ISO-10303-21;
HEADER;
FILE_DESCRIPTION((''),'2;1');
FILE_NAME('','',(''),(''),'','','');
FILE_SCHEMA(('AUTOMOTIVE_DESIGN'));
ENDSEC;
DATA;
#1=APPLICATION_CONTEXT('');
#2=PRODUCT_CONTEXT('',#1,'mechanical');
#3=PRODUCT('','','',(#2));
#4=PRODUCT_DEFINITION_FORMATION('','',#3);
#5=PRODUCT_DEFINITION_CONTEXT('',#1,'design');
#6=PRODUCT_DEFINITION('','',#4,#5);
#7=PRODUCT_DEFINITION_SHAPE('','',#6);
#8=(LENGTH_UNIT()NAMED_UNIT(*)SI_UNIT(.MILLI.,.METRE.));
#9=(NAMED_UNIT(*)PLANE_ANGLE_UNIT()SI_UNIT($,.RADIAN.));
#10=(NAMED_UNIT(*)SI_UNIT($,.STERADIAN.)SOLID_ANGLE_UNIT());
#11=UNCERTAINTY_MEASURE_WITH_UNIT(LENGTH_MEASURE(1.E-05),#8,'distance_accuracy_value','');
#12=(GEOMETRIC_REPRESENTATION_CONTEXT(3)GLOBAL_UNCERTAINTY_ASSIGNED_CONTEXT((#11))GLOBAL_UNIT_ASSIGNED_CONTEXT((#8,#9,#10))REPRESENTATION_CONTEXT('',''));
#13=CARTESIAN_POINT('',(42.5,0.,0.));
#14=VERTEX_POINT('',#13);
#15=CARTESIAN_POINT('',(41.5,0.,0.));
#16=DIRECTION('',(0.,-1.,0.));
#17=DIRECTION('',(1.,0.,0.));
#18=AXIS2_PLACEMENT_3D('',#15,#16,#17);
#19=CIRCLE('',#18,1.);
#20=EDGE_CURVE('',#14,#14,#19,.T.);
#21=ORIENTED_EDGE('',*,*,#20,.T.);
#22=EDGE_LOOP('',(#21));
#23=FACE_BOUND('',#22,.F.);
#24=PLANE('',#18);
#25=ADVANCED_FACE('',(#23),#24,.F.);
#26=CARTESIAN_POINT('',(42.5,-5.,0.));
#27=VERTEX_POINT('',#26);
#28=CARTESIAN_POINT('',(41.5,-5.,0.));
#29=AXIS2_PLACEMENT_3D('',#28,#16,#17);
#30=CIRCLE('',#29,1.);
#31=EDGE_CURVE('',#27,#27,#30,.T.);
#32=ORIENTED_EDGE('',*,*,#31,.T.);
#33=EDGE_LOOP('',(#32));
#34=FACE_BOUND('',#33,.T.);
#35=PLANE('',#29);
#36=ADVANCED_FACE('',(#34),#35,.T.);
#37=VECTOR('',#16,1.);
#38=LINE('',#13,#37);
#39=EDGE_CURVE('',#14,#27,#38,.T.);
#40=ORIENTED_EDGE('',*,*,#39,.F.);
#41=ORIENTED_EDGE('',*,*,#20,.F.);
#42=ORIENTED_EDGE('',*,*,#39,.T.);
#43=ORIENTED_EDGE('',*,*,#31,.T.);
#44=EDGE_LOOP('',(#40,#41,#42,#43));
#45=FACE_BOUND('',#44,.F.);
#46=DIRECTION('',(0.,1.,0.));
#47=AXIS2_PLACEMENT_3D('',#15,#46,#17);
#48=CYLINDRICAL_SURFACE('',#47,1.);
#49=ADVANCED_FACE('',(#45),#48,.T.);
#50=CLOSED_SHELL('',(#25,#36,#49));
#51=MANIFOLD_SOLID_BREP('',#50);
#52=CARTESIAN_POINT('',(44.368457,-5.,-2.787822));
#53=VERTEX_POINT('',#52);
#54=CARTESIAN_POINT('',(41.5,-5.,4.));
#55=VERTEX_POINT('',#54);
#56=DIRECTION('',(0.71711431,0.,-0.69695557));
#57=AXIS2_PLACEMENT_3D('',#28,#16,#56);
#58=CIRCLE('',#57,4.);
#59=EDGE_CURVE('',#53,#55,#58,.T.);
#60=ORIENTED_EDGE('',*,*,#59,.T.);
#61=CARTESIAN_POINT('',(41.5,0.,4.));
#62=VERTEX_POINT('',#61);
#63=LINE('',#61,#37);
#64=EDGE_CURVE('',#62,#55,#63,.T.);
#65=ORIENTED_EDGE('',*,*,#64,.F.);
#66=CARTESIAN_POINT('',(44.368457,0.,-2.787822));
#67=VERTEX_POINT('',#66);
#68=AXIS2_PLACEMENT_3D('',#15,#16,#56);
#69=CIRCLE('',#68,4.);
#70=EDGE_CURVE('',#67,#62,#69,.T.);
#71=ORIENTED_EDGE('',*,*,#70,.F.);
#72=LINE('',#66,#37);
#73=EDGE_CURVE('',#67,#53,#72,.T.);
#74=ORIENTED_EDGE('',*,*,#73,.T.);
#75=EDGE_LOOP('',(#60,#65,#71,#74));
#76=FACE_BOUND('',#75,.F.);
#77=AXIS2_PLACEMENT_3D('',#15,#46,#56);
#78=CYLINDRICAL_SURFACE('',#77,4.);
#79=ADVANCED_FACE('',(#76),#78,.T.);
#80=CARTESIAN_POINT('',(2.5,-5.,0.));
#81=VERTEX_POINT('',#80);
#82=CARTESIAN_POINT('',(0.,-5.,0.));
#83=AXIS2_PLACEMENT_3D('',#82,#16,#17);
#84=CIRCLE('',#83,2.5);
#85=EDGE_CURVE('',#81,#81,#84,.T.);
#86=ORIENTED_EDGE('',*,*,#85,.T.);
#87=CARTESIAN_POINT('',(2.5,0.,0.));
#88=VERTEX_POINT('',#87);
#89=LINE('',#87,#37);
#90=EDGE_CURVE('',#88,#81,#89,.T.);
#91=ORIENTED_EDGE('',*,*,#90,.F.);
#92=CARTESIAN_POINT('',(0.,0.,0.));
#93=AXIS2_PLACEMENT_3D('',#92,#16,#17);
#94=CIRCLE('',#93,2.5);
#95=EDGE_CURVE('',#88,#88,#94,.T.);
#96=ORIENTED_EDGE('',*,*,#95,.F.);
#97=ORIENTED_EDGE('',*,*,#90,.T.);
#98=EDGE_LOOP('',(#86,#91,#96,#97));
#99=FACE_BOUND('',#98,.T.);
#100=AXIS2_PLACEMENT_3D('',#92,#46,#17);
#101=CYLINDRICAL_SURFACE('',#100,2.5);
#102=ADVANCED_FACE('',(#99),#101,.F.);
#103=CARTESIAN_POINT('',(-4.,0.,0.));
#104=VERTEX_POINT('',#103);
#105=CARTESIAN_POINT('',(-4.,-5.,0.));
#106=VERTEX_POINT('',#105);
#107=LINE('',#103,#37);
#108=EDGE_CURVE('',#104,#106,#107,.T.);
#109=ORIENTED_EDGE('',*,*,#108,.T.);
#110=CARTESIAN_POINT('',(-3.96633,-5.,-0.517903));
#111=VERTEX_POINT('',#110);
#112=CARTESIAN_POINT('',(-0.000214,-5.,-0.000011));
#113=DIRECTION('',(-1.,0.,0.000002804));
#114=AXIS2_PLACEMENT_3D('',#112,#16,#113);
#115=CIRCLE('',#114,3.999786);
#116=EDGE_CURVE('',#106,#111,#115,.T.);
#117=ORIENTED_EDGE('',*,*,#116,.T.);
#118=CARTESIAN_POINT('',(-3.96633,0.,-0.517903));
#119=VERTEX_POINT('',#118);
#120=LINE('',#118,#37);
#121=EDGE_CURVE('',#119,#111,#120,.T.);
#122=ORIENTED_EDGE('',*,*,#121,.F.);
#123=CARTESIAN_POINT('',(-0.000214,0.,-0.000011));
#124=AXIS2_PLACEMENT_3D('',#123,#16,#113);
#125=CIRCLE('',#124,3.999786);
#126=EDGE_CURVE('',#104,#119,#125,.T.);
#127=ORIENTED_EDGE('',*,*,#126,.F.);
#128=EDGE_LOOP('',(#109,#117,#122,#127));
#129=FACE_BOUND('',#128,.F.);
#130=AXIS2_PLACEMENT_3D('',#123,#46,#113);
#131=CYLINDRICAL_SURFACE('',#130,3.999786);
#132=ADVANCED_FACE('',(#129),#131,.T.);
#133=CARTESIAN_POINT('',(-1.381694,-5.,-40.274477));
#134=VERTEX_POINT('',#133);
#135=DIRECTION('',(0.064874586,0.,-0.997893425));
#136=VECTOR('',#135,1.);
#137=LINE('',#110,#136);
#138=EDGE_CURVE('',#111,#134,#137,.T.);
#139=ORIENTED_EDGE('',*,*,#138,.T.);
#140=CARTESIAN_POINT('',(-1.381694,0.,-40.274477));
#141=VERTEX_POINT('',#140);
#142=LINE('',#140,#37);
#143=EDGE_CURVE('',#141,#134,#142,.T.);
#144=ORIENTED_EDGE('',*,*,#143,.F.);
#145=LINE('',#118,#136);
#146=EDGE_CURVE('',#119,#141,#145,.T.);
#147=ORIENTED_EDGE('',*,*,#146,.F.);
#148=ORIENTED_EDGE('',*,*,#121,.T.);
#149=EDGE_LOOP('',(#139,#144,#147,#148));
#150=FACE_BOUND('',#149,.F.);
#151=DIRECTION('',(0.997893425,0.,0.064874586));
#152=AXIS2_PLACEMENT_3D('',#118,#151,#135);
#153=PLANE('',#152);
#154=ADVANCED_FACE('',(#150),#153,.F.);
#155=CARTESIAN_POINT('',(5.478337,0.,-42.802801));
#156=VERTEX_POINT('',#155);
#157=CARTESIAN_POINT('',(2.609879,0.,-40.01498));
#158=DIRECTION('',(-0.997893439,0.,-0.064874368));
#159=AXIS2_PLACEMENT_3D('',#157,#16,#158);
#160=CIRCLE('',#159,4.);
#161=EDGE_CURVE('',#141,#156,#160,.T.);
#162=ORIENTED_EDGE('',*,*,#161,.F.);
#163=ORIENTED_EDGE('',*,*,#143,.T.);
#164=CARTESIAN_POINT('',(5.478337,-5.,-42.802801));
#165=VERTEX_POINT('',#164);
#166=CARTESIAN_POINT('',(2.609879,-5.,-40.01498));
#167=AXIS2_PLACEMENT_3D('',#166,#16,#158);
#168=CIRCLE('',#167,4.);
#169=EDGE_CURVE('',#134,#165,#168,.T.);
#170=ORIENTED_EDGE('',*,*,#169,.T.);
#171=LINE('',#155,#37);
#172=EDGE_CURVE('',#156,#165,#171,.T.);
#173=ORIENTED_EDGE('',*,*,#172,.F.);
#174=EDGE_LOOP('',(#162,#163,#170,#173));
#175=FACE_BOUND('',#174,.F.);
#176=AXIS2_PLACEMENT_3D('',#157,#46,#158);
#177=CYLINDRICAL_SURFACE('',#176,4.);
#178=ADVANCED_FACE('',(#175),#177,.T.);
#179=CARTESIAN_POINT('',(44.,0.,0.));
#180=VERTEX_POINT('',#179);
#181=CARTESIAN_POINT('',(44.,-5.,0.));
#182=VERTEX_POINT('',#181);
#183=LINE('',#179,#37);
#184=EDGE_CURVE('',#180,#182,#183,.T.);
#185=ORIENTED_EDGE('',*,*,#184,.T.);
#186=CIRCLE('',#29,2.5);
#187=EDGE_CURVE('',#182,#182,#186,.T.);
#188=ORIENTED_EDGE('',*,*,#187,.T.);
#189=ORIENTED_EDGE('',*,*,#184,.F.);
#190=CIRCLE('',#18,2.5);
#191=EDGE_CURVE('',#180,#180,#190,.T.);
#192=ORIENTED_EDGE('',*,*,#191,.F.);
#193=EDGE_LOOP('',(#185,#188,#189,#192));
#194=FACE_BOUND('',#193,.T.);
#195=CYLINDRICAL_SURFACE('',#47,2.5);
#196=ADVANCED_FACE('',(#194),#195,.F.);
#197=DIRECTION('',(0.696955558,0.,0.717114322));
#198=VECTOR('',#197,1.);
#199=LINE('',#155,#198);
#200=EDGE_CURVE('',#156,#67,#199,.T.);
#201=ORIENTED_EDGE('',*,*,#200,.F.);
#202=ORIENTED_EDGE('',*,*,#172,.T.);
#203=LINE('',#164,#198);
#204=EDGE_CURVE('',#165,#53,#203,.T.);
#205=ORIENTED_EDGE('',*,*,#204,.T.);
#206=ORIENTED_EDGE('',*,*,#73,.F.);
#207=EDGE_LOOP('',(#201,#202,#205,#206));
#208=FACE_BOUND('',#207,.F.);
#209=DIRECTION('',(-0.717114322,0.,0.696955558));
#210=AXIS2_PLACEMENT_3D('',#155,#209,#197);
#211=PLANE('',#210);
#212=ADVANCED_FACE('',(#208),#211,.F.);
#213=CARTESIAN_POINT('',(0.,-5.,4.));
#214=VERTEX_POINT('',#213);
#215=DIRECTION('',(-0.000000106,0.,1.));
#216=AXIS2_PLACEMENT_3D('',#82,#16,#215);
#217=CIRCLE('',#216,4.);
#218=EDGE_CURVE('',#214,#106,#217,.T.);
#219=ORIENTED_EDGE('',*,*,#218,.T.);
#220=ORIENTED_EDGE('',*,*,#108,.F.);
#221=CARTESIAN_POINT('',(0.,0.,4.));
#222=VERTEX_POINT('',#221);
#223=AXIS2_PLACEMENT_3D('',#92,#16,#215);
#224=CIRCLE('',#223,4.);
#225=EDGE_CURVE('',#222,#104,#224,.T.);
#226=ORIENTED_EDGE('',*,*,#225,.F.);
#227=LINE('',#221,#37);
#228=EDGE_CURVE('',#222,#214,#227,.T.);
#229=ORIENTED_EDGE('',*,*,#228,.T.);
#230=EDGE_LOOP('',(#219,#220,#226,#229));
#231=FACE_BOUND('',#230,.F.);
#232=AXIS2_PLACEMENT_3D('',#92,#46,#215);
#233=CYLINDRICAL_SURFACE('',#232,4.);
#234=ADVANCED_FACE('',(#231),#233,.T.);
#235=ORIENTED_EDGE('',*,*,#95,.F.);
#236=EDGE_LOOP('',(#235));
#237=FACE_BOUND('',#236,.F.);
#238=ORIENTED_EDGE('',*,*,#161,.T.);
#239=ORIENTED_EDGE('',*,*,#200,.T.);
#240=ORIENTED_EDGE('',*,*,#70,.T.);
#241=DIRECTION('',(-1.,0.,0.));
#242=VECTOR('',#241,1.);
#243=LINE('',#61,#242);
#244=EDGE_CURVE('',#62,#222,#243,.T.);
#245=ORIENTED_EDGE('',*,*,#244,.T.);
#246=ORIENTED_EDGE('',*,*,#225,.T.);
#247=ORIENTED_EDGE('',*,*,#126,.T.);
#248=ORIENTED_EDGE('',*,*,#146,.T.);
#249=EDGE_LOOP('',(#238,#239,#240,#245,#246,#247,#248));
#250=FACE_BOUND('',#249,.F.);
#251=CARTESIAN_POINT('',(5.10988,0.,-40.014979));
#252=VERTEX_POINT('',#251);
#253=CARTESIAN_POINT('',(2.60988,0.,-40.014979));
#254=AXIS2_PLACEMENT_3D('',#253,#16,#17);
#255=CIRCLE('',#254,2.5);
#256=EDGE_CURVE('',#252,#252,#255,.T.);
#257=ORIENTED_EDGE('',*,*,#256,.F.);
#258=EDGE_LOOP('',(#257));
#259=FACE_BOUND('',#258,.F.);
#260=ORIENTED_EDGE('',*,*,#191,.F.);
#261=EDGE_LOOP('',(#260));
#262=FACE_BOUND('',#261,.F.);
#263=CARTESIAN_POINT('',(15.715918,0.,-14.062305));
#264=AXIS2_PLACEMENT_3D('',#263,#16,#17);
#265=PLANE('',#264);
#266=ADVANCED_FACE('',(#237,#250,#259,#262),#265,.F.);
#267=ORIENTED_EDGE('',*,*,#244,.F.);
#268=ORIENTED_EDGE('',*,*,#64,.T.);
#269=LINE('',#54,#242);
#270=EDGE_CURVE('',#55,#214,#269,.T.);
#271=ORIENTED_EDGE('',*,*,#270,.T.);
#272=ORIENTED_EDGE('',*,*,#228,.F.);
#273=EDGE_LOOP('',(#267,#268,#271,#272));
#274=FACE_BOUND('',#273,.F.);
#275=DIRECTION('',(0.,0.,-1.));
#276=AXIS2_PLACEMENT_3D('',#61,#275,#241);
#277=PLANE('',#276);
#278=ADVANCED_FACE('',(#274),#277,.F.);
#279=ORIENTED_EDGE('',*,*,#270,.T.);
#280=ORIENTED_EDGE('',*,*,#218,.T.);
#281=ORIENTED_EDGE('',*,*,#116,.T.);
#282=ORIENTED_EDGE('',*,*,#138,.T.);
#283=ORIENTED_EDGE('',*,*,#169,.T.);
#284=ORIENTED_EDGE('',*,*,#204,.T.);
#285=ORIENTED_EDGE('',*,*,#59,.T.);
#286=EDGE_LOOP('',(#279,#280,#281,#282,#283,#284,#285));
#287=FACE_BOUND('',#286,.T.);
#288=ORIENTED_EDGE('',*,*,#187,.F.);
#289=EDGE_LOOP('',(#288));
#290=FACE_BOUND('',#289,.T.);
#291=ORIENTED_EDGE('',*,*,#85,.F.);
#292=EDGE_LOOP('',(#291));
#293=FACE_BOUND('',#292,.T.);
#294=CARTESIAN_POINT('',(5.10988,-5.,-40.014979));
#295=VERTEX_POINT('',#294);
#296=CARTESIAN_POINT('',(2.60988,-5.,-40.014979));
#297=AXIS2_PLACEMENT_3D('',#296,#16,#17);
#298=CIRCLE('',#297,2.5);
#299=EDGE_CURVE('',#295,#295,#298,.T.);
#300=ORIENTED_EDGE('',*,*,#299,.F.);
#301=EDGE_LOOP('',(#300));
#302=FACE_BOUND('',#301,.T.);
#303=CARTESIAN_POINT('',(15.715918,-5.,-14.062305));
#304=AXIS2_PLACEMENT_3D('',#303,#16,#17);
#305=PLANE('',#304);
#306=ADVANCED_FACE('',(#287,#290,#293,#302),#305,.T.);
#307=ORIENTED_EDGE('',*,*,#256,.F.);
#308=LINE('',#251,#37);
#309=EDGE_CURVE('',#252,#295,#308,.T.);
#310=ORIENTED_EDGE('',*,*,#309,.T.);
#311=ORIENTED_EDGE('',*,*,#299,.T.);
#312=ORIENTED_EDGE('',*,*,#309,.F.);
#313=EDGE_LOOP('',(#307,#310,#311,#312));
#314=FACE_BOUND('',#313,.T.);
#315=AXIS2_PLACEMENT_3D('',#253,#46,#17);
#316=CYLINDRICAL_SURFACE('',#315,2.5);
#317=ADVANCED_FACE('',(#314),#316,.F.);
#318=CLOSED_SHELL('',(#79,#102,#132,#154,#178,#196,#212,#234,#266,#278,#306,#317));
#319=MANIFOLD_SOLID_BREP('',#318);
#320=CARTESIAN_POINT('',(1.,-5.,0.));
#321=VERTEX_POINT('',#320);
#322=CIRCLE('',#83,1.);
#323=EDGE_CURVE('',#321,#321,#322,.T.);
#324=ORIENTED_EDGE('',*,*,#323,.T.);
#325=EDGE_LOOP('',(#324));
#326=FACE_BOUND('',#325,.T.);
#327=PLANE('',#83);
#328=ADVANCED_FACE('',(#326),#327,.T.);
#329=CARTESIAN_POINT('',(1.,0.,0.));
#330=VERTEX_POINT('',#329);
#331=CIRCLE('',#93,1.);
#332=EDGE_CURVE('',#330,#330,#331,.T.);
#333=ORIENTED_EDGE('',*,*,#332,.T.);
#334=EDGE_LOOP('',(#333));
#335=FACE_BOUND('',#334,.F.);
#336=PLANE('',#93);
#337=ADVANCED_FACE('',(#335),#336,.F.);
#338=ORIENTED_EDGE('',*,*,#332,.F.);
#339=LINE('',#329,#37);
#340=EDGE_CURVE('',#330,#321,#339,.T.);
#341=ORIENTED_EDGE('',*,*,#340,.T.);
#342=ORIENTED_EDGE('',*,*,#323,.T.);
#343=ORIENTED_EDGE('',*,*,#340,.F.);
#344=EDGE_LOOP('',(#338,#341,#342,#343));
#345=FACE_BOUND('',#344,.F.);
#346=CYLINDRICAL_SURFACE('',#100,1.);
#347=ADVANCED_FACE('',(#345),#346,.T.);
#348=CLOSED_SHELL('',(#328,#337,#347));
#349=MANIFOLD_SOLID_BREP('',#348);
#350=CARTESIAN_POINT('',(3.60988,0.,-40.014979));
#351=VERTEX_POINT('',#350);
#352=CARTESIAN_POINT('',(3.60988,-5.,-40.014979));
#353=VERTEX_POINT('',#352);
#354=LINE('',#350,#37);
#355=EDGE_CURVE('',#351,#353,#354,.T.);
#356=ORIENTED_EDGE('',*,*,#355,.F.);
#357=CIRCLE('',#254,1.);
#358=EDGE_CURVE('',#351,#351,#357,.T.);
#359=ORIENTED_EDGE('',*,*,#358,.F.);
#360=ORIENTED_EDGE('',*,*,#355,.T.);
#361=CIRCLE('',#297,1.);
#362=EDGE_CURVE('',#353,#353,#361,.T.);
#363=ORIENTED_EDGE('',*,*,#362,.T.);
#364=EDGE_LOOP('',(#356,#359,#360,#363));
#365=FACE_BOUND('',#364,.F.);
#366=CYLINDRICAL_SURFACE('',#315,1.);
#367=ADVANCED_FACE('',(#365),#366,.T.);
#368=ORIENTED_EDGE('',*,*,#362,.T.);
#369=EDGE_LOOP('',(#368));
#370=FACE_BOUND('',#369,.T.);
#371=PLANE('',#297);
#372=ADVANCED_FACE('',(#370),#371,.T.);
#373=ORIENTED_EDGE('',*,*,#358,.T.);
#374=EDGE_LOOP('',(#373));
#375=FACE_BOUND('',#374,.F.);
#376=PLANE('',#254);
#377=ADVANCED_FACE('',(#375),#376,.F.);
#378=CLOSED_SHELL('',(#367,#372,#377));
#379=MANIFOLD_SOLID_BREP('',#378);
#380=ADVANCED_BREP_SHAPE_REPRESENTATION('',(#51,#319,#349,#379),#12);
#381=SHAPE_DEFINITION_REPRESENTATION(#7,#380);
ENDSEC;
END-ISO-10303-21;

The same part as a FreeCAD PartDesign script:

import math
import FreeCAD as App
import Part
import Sketcher

V = App.Vector
Q = App.Units.Quantity

doc = App.newDocument("Part")
body = doc.addObject("PartDesign::Body", "Body")
body.AllowCompound = True

# Sketch on XZ plane
sketch1 = body.newObject("Sketcher::SketchObject", "Sketch")
sketch1.AttachmentSupport = (doc.getObject("XZ_Plane"), [""])
sketch1.MapMode = "FlatFace"
sketch1.addGeometry(Part.LineSegment(V(41.5, 4, 0), V(0, 4, 0)), False)
sketch1.addGeometry(Part.ArcOfCircle(Part.Circle(V(0, 0, 0), V(0, 0, 1), 4), math.radians(90.000006), math.radians(179.999994)), False)
sketch1.addGeometry(Part.ArcOfCircle(Part.Circle(V(-0.000214, -0.000011, 0), V(0, 0, 1), 3.999786), math.radians(179.999839), math.radians(187.439538)), False)
sketch1.addGeometry(Part.LineSegment(V(-3.96633, -0.517903, 0), V(-1.381694, -40.274477, 0)), False)
sketch1.addGeometry(Part.ArcOfCircle(Part.Circle(V(2.609879, -40.01498, 0), V(0, 0, 1), 4), math.radians(-176.28036), math.radians(-44.183245)), False)
sketch1.addGeometry(Part.LineSegment(V(5.478337, -42.802801, 0), V(44.368457, -2.787822, 0)), False)
sketch1.addGeometry(Part.ArcOfCircle(Part.Circle(V(41.5, 0, 0), V(0, 0, 1), 4), math.radians(-44.183256), math.radians(89.999998)), False)
sketch1.addGeometry(Part.Circle(V(2.60988, -40.014979, 0), V(0, 0, 1), 2.5), False)
sketch1.addGeometry(Part.Circle(V(0, 0, 0), V(0, 0, 1), 2.5), False)
sketch1.addGeometry(Part.Circle(V(41.5, 0, 0), V(0, 0, 1), 2.5), False)
sketch1.addGeometry(Part.Circle(V(0, 0, 0), V(0, 0, 1), 1), False)
sketch1.addGeometry(Part.Circle(V(41.5, 0, 0), V(0, 0, 1), 1), False)
sketch1.addGeometry(Part.Circle(V(2.60988, -40.014979, 0), V(0, 0, 1), 1), False)
sketch1.addConstraint(Sketcher.Constraint("Coincident", 0, 2, 1, 1))
sketch1.addConstraint(Sketcher.Constraint("Coincident", 1, 2, 2, 1))
sketch1.addConstraint(Sketcher.Constraint("Coincident", 2, 2, 3, 1))
sketch1.addConstraint(Sketcher.Constraint("Coincident", 3, 2, 4, 1))
sketch1.addConstraint(Sketcher.Constraint("Coincident", 4, 2, 5, 1))
sketch1.addConstraint(Sketcher.Constraint("Coincident", 5, 2, 6, 1))
sketch1.addConstraint(Sketcher.Constraint("Coincident", 6, 2, 0, 1))
sketch1.addConstraint(Sketcher.Constraint("Horizontal", 0))
sketch1.addConstraint(Sketcher.Constraint("Coincident", 1, 3, -1, 1))
sketch1.addConstraint(Sketcher.Constraint("Coincident", 8, 3, -1, 1))
sketch1.addConstraint(Sketcher.Constraint("Coincident", 10, 3, -1, 1))
sketch1.addConstraint(Sketcher.Constraint("Coincident", 7, 3, 4, 3))
sketch1.addConstraint(Sketcher.Constraint("Coincident", 9, 3, 6, 3))
sketch1.addConstraint(Sketcher.Constraint("Coincident", 11, 3, 6, 3))
sketch1.addConstraint(Sketcher.Constraint("Coincident", 12, 3, 4, 3))
sketch1.addConstraint(Sketcher.Constraint("PointOnObject", 6, 3, -1))
sketch1.addConstraint(Sketcher.Constraint("PointOnObject", 0, 2, -2))
sketch1.addConstraint(Sketcher.Constraint("PointOnObject", 1, 2, -1))
sketch1.addConstraint(Sketcher.Constraint("Diameter", 7, Q("5 mm")))
sketch1.addConstraint(Sketcher.Constraint("Diameter", 8, Q("5 mm")))
sketch1.addConstraint(Sketcher.Constraint("Diameter", 9, Q("5 mm")))
sketch1.addConstraint(Sketcher.Constraint("Diameter", 10, Q("2 mm")))
sketch1.addConstraint(Sketcher.Constraint("Diameter", 11, Q("2 mm")))
sketch1.addConstraint(Sketcher.Constraint("Diameter", 12, Q("2 mm")))
sketch1.addConstraint(Sketcher.Constraint("Radius", 1, Q("4 mm")))
sketch1.addConstraint(Sketcher.Constraint("Radius", 4, Q("4 mm")))
sketch1.addConstraint(Sketcher.Constraint("DistanceX", 0, 2, 0, 1, Q("41.5 mm")))
sketch1.addConstraint(Sketcher.Constraint("Distance", 5, Q("55.8 mm")))
sketch1.addConstraint(Sketcher.Constraint("DistanceX", -1, 1, 6, 3, Q("41.5 mm")))
sketch1.addConstraint(Sketcher.Constraint("Radius", 2, Q("3.999786 mm")))
sketch1.addConstraint(Sketcher.Constraint("Distance", 3, Q("39.840501 mm")))
sketch1.addConstraint(Sketcher.Constraint("DistanceY", 4, 2, -1, 1, Q("42.802801 mm")))
sketch1.addConstraint(Sketcher.Constraint("DistanceY", 3, 2, 7, 3, Q("0.259498 mm")))
sketch1.addConstraint(Sketcher.Constraint("DistanceX", -1, 1, 4, 3, Q("2.609879 mm")))
sketch1.addConstraint(Sketcher.Constraint("DistanceY", 4, 3, -1, 1, Q("40.01498 mm")))
sketch1.addConstraint(Sketcher.Constraint("DistanceX", 2, 2, -1, 1, Q("3.96633 mm")))
pad1 = body.newObject("PartDesign::Pad", "Pad")
pad1.Profile = sketch1
pad1.Length = 5

doc.recompute()
